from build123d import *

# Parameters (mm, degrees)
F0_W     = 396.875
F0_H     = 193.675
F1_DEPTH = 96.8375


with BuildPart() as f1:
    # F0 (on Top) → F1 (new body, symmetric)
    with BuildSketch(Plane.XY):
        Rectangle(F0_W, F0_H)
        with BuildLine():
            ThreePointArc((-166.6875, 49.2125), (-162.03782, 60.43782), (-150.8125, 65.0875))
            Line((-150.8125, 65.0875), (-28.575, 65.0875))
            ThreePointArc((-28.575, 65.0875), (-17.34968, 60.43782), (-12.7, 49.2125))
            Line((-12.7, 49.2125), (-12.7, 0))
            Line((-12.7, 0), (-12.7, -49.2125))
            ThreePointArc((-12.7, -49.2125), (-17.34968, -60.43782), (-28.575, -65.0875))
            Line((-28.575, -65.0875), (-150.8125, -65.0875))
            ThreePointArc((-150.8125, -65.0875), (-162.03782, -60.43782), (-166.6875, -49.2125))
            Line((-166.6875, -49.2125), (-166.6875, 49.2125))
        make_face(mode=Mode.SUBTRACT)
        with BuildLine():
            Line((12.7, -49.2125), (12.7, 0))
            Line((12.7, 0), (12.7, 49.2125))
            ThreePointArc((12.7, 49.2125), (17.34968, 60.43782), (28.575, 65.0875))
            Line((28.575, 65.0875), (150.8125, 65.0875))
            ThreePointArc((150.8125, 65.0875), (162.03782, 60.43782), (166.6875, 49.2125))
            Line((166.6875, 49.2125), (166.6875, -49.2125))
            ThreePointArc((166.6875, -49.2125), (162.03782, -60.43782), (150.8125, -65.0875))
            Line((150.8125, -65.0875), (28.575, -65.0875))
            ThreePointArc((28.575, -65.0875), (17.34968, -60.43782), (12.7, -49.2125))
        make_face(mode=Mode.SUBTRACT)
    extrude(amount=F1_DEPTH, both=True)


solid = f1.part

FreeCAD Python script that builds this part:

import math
import FreeCAD as App
import Part
import Sketcher

V = App.Vector
Q = App.Units.Quantity

doc = App.newDocument("Part")
body = doc.addObject("PartDesign::Body", "Body")

sketch1 = body.newObject("Sketcher::SketchObject", "Sketch")
sketch1.AttachmentSupport = (doc.getObject("XY_Plane"), [""])
sketch1.MapMode = "FlatFace"
sketch1.addGeometry(Part.LineSegment(V(-198, 97, 0), V(-198, -97, 0)), False)
sketch1.addGeometry(Part.LineSegment(V(-198, -97, 0), V(198, -97, 0)), False)
sketch1.addGeometry(Part.LineSegment(V(198, -97, 0), V(198, 97, 0)), False)
sketch1.addGeometry(Part.LineSegment(V(198, 97, 0), V(-198, 97, 0)), False)
sketch1.addGeometry(Part.LineSegment(V(-167, -49, 0), V(-167, 49, 0)), False)
sketch1.addGeometry(Part.ArcOfCircle(Part.Circle(V(-151, 49, 0), V(0, 0, 1), 16), math.radians(90), math.radians(180)), False)
sketch1.addGeometry(Part.LineSegment(V(-151, 65, 0), V(-29, 65, 0)), False)
sketch1.addGeometry(Part.ArcOfCircle(Part.Circle(V(-29, 49, 0), V(0, 0, 1), 16), math.radians(0), math.radians(90)), False)
sketch1.addGeometry(Part.LineSegment(V(-13, 49, 0), V(-13, -49, 0)), False)
sketch1.addGeometry(Part.ArcOfCircle(Part.Circle(V(-29, -49, 0), V(0, 0, 1), 16), math.radians(-90), math.radians(0)), False)
sketch1.addGeometry(Part.LineSegment(V(-29, -65, 0), V(-151, -65, 0)), False)
sketch1.addGeometry(Part.ArcOfCircle(Part.Circle(V(-151, -49, 0), V(0, 0, 1), 16), math.radians(-180), math.radians(-90)), False)
sketch1.addGeometry(Part.ArcOfCircle(Part.Circle(V(29, -49, 0), V(0, 0, 1), 16), math.radians(-180), math.radians(-90)), False)
sketch1.addGeometry(Part.LineSegment(V(13, -49, 0), V(13, 49, 0)), False)
sketch1.addGeometry(Part.ArcOfCircle(Part.Circle(V(29, 49, 0), V(0, 0, 1), 16), math.radians(90), math.radians(180)), False)
sketch1.addGeometry(Part.LineSegment(V(29, 65, 0), V(151, 65, 0)), False)
sketch1.addGeometry(Part.ArcOfCircle(Part.Circle(V(151, 49, 0), V(0, 0, 1), 16), math.radians(0), math.radians(90)), False)
sketch1.addGeometry(Part.LineSegment(V(167, 49, 0), V(167, -49, 0)), False)
sketch1.addGeometry(Part.ArcOfCircle(Part.Circle(V(151, -49, 0), V(0, 0, 1), 16), math.radians(-90), math.radians(0)), False)
sketch1.addGeometry(Part.LineSegment(V(151, -65, 0), V(29, -65, 0)), False)
sketch1.addConstraint(Sketcher.Constraint("Coincident", 0, 2, 1, 1))
sketch1.addConstraint(Sketcher.Constraint("Coincident", 1, 2, 2, 1))
sketch1.addConstraint(Sketcher.Constraint("Coincident", 2, 2, 3, 1))
sketch1.addConstraint(Sketcher.Constraint("Coincident", 3, 2, 0, 1))
sketch1.addConstraint(Sketcher.Constraint("Tangent", 4, 2, 5, 2))
sketch1.addConstraint(Sketcher.Constraint("Tangent", 5, 1, 6, 1))
sketch1.addConstraint(Sketcher.Constraint("Tangent", 6, 2, 7, 2))
sketch1.addConstraint(Sketcher.Constraint("Tangent", 7, 1, 8, 1))
sketch1.addConstraint(Sketcher.Constraint("Tangent", 8, 2, 9, 2))
sketch1.addConstraint(Sketcher.Constraint("Tangent", 9, 1, 10, 1))
sketch1.addConstraint(Sketcher.Constraint("Tangent", 10, 2, 11, 2))
sketch1.addConstraint(Sketcher.Constraint("Tangent", 11, 1, 4, 1))
sketch1.addConstraint(Sketcher.Constraint("Tangent", 12, 1, 13, 1))
sketch1.addConstraint(Sketcher.Constraint("Tangent", 13, 2, 14, 2))
sketch1.addConstraint(Sketcher.Constraint("Tangent", 14, 1, 15, 1))
sketch1.addConstraint(Sketcher.Constraint("Tangent", 15, 2, 16, 2))
sketch1.addConstraint(Sketcher.Constraint("Tangent", 16, 1, 17, 1))
sketch1.addConstraint(Sketcher.Constraint("Tangent", 17, 2, 18, 2))
sketch1.addConstraint(Sketcher.Constraint("Tangent", 18, 1, 19, 1))
sketch1.addConstraint(Sketcher.Constraint("Tangent", 19, 2, 12, 2))
sketch1.addConstraint(Sketcher.Constraint("Vertical", 0))
sketch1.addConstraint(Sketcher.Constraint("Horizontal", 1))
sketch1.addConstraint(Sketcher.Constraint("Vertical", 2))
sketch1.addConstraint(Sketcher.Constraint("Horizontal", 3))
sketch1.addConstraint(Sketcher.Constraint("Vertical", 4))
sketch1.addConstraint(Sketcher.Constraint("Horizontal", 6))
sketch1.addConstraint(Sketcher.Constraint("Vertical", 8))
sketch1.addConstraint(Sketcher.Constraint("Horizontal", 10))
sketch1.addConstraint(Sketcher.Constraint("Vertical", 13))
sketch1.addConstraint(Sketcher.Constraint("Horizontal", 15))
sketch1.addConstraint(Sketcher.Constraint("Vertical", 17))
sketch1.addConstraint(Sketcher.Constraint("Horizontal", 19))
sketch1.addConstraint(Sketcher.Constraint("Equal", 5, 7))
sketch1.addConstraint(Sketcher.Constraint("Equal", 7, 9))
sketch1.addConstraint(Sketcher.Constraint("Equal", 9, 11))
sketch1.addConstraint(Sketcher.Constraint("Equal", 11, 12))
sketch1.addConstraint(Sketcher.Constraint("Equal", 12, 14))
sketch1.addConstraint(Sketcher.Constraint("Equal", 14, 16))
sketch1.addConstraint(Sketcher.Constraint("Equal", 16, 18))
sketch1.addConstraint(Sketcher.Constraint("Symmetric", 7, 3, 12, 3, -1, 1))
sketch1.addConstraint(Sketcher.Constraint("Symmetric", 11, 3, 16, 3, -1, 1))
sketch1.addConstraint(Sketcher.Constraint("Symmetric", 0, 2, 2, 2, -1, 1))
sketch1.addConstraint(Sketcher.Constraint("Horizontal", 11, 3, 12, 3))
sketch1.addConstraint(Sketcher.Constraint("Radius", 5, Q("0.625 in")))
sketch1.addConstraint(Sketcher.Constraint("DistanceX", 8, 2, 12, 1, Q("1 in")))
sketch1.addConstraint(Sketcher.Constraint("DistanceY", 11, 3, 5, 1, Q("4.5 in")))
sketch1.addConstraint(Sketcher.Constraint("DistanceX", 1, 1, 1, 2, Q("15.625 in")))
sketch1.addConstraint(Sketcher.Constraint("DistanceX", 6, 1, 6, 2, Q("4.8125 in")))
sketch1.addConstraint(Sketcher.Constraint("DistanceY", 0, 2, 0, 1, Q("7.625 in")))
pad1 = body.newObject("PartDesign::Pad", "Pad")
pad1.Profile = sketch1
pad1.Length = Q("7.625 in")
pad1.Midplane = True

doc.recompute()
